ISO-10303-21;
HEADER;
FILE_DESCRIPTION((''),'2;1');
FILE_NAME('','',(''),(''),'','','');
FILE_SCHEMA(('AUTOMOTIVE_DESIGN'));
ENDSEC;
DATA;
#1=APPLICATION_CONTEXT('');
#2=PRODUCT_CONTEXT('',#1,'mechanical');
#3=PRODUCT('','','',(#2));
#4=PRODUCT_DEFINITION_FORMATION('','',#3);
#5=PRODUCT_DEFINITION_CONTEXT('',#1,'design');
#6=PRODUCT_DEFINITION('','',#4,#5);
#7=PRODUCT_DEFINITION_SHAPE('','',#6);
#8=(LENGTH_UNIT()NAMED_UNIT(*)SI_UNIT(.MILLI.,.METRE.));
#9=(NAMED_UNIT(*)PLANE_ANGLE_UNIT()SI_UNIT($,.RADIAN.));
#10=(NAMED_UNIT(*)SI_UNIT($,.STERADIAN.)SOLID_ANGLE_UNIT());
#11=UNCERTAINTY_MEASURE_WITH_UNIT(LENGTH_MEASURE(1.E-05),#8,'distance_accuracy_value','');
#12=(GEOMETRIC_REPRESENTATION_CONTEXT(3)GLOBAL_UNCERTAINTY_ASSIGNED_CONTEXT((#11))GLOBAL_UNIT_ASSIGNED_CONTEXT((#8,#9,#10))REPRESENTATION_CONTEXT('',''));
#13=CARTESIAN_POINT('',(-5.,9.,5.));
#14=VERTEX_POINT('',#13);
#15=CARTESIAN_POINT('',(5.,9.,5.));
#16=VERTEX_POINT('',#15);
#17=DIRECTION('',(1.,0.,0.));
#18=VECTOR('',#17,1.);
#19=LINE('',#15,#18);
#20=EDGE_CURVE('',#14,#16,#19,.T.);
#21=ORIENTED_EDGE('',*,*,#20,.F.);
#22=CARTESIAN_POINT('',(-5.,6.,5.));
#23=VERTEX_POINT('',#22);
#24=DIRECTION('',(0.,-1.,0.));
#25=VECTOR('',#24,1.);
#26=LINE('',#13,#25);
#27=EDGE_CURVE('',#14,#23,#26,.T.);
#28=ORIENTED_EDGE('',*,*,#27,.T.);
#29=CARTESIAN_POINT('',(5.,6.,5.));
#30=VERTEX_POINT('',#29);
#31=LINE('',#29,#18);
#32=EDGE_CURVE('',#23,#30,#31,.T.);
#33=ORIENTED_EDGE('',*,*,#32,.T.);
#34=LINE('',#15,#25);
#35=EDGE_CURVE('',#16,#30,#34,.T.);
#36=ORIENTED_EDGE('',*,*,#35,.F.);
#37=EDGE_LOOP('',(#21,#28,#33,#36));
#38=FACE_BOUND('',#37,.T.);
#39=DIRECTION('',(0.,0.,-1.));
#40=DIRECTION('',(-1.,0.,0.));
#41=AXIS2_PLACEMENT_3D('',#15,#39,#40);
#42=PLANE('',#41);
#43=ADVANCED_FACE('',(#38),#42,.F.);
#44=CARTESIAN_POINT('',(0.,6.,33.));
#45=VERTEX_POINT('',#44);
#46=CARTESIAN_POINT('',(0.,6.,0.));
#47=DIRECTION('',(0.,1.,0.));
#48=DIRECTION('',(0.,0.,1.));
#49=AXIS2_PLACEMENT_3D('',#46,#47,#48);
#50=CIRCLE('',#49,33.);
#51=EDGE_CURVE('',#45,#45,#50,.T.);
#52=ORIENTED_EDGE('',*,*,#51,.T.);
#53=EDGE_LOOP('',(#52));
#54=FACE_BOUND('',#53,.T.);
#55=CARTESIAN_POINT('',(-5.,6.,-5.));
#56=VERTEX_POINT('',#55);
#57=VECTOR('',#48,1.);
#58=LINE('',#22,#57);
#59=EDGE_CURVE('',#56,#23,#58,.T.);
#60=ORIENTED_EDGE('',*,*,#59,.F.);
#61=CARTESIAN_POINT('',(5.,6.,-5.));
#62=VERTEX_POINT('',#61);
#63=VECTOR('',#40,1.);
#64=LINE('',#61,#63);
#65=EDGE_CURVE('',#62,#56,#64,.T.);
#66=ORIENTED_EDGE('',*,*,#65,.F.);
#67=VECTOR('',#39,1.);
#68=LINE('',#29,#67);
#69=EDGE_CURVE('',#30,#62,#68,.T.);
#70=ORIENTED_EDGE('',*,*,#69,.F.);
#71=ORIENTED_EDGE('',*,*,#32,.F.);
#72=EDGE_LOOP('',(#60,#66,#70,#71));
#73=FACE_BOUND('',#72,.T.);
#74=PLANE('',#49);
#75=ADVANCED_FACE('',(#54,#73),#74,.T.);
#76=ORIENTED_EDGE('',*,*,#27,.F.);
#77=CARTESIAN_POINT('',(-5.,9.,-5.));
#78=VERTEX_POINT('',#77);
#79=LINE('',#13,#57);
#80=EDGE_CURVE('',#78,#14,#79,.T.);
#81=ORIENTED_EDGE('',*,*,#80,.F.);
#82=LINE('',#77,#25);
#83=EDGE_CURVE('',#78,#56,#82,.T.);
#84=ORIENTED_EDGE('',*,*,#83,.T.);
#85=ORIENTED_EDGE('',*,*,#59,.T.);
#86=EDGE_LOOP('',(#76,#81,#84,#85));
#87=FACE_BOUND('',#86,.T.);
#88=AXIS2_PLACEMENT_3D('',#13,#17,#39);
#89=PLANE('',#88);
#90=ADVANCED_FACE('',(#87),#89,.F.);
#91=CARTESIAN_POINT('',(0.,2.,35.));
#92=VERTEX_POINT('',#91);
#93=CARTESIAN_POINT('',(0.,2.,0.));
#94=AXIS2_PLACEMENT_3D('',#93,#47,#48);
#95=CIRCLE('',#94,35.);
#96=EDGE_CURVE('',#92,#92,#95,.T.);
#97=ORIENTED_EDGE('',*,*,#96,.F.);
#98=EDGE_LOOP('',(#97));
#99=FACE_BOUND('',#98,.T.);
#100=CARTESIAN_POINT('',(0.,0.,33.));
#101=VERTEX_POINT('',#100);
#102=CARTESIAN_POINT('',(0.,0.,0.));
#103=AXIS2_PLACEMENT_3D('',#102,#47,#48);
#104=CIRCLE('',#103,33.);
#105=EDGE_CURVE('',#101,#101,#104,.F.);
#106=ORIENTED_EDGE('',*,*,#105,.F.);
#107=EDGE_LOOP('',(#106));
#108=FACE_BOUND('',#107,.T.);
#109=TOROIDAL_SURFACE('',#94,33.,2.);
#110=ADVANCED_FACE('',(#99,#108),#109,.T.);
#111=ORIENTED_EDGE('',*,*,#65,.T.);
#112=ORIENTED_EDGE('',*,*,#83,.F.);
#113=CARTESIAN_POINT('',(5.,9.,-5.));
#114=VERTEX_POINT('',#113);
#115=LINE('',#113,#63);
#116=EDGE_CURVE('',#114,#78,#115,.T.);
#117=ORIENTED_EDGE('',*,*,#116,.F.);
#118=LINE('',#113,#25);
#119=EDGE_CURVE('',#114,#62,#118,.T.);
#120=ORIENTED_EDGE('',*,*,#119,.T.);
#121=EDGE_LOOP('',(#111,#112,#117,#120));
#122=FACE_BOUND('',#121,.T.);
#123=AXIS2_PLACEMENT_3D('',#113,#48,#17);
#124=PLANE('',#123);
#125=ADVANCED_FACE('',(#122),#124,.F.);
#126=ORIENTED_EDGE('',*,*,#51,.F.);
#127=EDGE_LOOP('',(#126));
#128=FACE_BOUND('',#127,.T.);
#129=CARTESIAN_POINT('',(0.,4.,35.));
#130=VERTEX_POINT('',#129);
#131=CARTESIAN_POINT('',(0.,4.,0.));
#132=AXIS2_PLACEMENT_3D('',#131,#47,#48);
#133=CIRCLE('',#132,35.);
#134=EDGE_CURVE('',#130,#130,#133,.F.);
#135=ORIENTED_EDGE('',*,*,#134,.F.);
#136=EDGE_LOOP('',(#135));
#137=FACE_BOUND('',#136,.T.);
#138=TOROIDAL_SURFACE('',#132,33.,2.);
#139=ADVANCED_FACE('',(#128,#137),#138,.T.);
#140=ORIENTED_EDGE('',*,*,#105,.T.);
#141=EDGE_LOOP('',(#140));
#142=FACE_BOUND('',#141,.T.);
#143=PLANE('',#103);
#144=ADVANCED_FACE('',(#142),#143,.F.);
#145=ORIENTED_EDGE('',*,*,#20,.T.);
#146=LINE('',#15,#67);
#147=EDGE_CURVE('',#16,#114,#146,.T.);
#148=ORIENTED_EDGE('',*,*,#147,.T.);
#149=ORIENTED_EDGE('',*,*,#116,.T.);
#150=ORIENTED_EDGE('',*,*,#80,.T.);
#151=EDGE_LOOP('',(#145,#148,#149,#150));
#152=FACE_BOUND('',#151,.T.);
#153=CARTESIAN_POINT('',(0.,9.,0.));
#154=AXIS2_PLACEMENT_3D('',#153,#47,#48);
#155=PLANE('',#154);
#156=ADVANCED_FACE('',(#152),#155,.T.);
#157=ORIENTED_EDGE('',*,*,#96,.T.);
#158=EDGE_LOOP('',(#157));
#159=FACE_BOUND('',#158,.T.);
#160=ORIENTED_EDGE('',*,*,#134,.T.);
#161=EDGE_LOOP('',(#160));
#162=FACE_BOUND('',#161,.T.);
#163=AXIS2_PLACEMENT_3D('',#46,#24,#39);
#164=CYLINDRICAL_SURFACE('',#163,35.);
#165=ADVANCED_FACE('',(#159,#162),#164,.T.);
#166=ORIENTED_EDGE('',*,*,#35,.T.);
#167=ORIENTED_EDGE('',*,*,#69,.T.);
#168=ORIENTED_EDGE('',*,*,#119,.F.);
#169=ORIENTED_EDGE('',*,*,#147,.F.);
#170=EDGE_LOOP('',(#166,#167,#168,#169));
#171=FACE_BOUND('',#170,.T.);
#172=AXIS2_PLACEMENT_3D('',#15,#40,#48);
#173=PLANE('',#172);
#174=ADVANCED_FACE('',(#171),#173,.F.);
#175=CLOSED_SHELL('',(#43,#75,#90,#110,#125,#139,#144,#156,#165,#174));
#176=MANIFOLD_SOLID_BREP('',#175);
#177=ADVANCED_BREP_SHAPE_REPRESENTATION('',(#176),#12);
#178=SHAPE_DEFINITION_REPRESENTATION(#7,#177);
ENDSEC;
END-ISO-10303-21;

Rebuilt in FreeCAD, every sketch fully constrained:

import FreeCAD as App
import Part
import Sketcher
from FreeCAD import Vector
Q = App.Units.Quantity


def edges_at(feature, points):
    """Names of the edges that pass closest to the given points."""
    edges = feature.Shape.Edges
    near = lambda p: min(range(len(edges)), key=lambda i: edges[i].distToShape(Part.Vertex(*p))[0])
    return sorted({f"Edge{near(p) + 1}" for p in points})

doc = App.newDocument("Part")
body = doc.addObject("PartDesign::Body", "Body")

sketch1 = doc.addObject("Sketcher::SketchObject", "Sketch")
body.addObject(sketch1)
sketch1.AttachmentSupport = (doc.XZ_Plane, [""])
sketch1.MapMode = "FlatFace"
sketch1.addGeometry(Part.Circle(Vector(0, 0, 0), Vector(0, 0, 1), 35), False)
sketch1.addConstraint(Sketcher.Constraint("Coincident", 0, 3, -1, 1))
sketch1.addConstraint(Sketcher.Constraint("Diameter", 0, Q("70 mm")))
pad1 = doc.addObject("PartDesign::Pad", "Pad")
body.addObject(pad1)
pad1.Profile = sketch1
pad1.Length = 6
pad1.Reversed = True
doc.recompute()

fillet = doc.addObject("PartDesign::Fillet", "Fillet")
body.addObject(fillet)
fillet.Base = (pad1, edges_at(pad1, [(0, 0, -35), (0, 6, -35)]))
fillet.Radius = 2

sketch2 = doc.addObject("Sketcher::SketchObject", "Sketch001")
body.addObject(sketch2)
sketch2.AttachmentSupport = (doc.XZ_Plane, [""])
sketch2.MapMode = "FlatFace"
sketch2.AttachmentOffset = App.Placement(Vector(0, 0, -6), App.Rotation())
sketch2.addGeometry(Part.LineSegment(Vector(-5, -5, 0), Vector(-5, 5, 0)), False)
sketch2.addGeometry(Part.LineSegment(Vector(-5, 5, 0), Vector(5, 5, 0)), False)
sketch2.addGeometry(Part.LineSegment(Vector(5, 5, 0), Vector(5, -5, 0)), False)
sketch2.addGeometry(Part.LineSegment(Vector(5, -5, 0), Vector(-5, -5, 0)), False)
sketch2.addConstraint(Sketcher.Constraint("Coincident", 0, 2, 1, 1))
sketch2.addConstraint(Sketcher.Constraint("Coincident", 1, 2, 2, 1))
sketch2.addConstraint(Sketcher.Constraint("Coincident", 2, 2, 3, 1))
sketch2.addConstraint(Sketcher.Constraint("Coincident", 3, 2, 0, 1))
sketch2.addConstraint(Sketcher.Constraint("Vertical", 0))
sketch2.addConstraint(Sketcher.Constraint("Horizontal", 1))
sketch2.addConstraint(Sketcher.Constraint("Vertical", 2))
sketch2.addConstraint(Sketcher.Constraint("Horizontal", 3))
sketch2.addConstraint(Sketcher.Constraint("Symmetric", 0, 2, 2, 2, -1, 1))
sketch2.addConstraint(Sketcher.Constraint("Equal", 3, 0))
sketch2.addConstraint(Sketcher.Constraint("DistanceX", 1, 1, 1, 2, Q("10 mm")))
pad2 = doc.addObject("PartDesign::Pad", "Pad001")
body.addObject(pad2)
pad2.Profile = sketch2
pad2.Length = 3
pad2.Reversed = True

doc.recompute()
